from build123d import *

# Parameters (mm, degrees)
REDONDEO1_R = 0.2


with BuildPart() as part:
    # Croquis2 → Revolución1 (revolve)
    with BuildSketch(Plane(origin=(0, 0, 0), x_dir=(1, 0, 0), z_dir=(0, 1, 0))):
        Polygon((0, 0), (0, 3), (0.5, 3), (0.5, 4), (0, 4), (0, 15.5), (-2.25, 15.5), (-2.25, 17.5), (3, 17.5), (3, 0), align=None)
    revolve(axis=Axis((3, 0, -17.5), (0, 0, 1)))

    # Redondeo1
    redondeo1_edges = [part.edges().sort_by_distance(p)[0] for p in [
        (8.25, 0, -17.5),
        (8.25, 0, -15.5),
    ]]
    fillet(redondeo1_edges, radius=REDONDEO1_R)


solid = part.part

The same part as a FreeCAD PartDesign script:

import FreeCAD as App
import Part
import Sketcher
Q = App.Units.Quantity


def edges_at(feature, points):
    """Names of the edges that pass closest to the given points."""
    edges = feature.Shape.Edges
    near = lambda p: min(range(len(edges)), key=lambda i: edges[i].distToShape(Part.Vertex(*p))[0])
    return sorted({f"Edge{near(p) + 1}" for p in points})


def add_polygon(sketch, points):
    """Adds a closed chain of lines whose ends are joined by coincident constraints."""
    first, n = sketch.GeometryCount, len(points)
    for a, b in zip(points, points[1:] + points[:1]):
        sketch.addGeometry(Part.LineSegment(App.Vector(*a, 0), App.Vector(*b, 0)), False)
    for i in range(n):
        sketch.addConstraint(Sketcher.Constraint("Coincident", first + i, 2, first + (i + 1) % n, 1))

doc = App.newDocument("Part")
body = doc.addObject("PartDesign::Body", "Body")

# Sketch on XZ plane
sketch1 = body.newObject("Sketcher::SketchObject", "Sketch")
sketch1.AttachmentSupport = (doc.getObject("XZ_Plane"), [""])
sketch1.MapMode = "FlatFace"
add_polygon(sketch1, [(0, -3), (0, 0), (3, 0), (3, -17.5), (-2.2, -17.5), (-2.2, -15.5), (0, -15.5), (0, -4), (0.5, -4), (0.5, -3)])  # lines 0-9
sketch1.addGeometry(Part.LineSegment(App.Vector(3, -17.5, 0), App.Vector(3, 0, 0)), True)  # axis
sketch1.addConstraint(Sketcher.Constraint("Vertical", 0))
sketch1.addConstraint(Sketcher.Constraint("Horizontal", 1))
sketch1.addConstraint(Sketcher.Constraint("Vertical", 2))
sketch1.addConstraint(Sketcher.Constraint("Horizontal", 3))
sketch1.addConstraint(Sketcher.Constraint("Vertical", 4))
sketch1.addConstraint(Sketcher.Constraint("Horizontal", 5))
sketch1.addConstraint(Sketcher.Constraint("Vertical", 6))
sketch1.addConstraint(Sketcher.Constraint("Horizontal", 7))
sketch1.addConstraint(Sketcher.Constraint("Vertical", 8))
sketch1.addConstraint(Sketcher.Constraint("Horizontal", 9))
sketch1.addConstraint(Sketcher.Constraint("Vertical", 10))
sketch1.addConstraint(Sketcher.Constraint("Coincident", 0, 2, -1, 1))
sketch1.addConstraint(Sketcher.Constraint("Coincident", 10, 1, 2, 2))
sketch1.addConstraint(Sketcher.Constraint("PointOnObject", 5, 2, -2))
sketch1.addConstraint(Sketcher.Constraint("PointOnObject", 10, 2, -1))
sketch1.addConstraint(Sketcher.Constraint("Equal", 1, 0))
sketch1.addConstraint(Sketcher.Constraint("DistanceX", 1, 1, 1, 2, Q("3 mm")))
sketch1.addConstraint(Sketcher.Constraint("DistanceY", 4, 1, 4, 2, Q("2 mm")))
sketch1.addConstraint(Sketcher.Constraint("DistanceY", 8, 1, 8, 2, Q("1 mm")))
sketch1.addConstraint(Sketcher.Constraint("DistanceX", 7, 1, 7, 2, Q("0.5 mm")))
sketch1.addConstraint(Sketcher.Constraint("DistanceY", 2, 2, 2, 1, Q("17.5 mm")))
sketch1.addConstraint(Sketcher.Constraint("DistanceX", 3, 2, 3, 1, Q("5.25 mm")))
revolution = body.newObject("PartDesign::Revolution", "Revolution")
revolution.Profile = sketch1
revolution.ReferenceAxis = (sketch1, ["Axis0"])
revolution.Angle = 360
doc.recompute()

fillet = body.newObject("PartDesign::Fillet", "Fillet")
fillet.Base = (revolution, edges_at(revolution, [(8.25, 0, -17.5), (8.25, 0, -15.5)]))
fillet.Radius = 0.2

doc.recompute()
